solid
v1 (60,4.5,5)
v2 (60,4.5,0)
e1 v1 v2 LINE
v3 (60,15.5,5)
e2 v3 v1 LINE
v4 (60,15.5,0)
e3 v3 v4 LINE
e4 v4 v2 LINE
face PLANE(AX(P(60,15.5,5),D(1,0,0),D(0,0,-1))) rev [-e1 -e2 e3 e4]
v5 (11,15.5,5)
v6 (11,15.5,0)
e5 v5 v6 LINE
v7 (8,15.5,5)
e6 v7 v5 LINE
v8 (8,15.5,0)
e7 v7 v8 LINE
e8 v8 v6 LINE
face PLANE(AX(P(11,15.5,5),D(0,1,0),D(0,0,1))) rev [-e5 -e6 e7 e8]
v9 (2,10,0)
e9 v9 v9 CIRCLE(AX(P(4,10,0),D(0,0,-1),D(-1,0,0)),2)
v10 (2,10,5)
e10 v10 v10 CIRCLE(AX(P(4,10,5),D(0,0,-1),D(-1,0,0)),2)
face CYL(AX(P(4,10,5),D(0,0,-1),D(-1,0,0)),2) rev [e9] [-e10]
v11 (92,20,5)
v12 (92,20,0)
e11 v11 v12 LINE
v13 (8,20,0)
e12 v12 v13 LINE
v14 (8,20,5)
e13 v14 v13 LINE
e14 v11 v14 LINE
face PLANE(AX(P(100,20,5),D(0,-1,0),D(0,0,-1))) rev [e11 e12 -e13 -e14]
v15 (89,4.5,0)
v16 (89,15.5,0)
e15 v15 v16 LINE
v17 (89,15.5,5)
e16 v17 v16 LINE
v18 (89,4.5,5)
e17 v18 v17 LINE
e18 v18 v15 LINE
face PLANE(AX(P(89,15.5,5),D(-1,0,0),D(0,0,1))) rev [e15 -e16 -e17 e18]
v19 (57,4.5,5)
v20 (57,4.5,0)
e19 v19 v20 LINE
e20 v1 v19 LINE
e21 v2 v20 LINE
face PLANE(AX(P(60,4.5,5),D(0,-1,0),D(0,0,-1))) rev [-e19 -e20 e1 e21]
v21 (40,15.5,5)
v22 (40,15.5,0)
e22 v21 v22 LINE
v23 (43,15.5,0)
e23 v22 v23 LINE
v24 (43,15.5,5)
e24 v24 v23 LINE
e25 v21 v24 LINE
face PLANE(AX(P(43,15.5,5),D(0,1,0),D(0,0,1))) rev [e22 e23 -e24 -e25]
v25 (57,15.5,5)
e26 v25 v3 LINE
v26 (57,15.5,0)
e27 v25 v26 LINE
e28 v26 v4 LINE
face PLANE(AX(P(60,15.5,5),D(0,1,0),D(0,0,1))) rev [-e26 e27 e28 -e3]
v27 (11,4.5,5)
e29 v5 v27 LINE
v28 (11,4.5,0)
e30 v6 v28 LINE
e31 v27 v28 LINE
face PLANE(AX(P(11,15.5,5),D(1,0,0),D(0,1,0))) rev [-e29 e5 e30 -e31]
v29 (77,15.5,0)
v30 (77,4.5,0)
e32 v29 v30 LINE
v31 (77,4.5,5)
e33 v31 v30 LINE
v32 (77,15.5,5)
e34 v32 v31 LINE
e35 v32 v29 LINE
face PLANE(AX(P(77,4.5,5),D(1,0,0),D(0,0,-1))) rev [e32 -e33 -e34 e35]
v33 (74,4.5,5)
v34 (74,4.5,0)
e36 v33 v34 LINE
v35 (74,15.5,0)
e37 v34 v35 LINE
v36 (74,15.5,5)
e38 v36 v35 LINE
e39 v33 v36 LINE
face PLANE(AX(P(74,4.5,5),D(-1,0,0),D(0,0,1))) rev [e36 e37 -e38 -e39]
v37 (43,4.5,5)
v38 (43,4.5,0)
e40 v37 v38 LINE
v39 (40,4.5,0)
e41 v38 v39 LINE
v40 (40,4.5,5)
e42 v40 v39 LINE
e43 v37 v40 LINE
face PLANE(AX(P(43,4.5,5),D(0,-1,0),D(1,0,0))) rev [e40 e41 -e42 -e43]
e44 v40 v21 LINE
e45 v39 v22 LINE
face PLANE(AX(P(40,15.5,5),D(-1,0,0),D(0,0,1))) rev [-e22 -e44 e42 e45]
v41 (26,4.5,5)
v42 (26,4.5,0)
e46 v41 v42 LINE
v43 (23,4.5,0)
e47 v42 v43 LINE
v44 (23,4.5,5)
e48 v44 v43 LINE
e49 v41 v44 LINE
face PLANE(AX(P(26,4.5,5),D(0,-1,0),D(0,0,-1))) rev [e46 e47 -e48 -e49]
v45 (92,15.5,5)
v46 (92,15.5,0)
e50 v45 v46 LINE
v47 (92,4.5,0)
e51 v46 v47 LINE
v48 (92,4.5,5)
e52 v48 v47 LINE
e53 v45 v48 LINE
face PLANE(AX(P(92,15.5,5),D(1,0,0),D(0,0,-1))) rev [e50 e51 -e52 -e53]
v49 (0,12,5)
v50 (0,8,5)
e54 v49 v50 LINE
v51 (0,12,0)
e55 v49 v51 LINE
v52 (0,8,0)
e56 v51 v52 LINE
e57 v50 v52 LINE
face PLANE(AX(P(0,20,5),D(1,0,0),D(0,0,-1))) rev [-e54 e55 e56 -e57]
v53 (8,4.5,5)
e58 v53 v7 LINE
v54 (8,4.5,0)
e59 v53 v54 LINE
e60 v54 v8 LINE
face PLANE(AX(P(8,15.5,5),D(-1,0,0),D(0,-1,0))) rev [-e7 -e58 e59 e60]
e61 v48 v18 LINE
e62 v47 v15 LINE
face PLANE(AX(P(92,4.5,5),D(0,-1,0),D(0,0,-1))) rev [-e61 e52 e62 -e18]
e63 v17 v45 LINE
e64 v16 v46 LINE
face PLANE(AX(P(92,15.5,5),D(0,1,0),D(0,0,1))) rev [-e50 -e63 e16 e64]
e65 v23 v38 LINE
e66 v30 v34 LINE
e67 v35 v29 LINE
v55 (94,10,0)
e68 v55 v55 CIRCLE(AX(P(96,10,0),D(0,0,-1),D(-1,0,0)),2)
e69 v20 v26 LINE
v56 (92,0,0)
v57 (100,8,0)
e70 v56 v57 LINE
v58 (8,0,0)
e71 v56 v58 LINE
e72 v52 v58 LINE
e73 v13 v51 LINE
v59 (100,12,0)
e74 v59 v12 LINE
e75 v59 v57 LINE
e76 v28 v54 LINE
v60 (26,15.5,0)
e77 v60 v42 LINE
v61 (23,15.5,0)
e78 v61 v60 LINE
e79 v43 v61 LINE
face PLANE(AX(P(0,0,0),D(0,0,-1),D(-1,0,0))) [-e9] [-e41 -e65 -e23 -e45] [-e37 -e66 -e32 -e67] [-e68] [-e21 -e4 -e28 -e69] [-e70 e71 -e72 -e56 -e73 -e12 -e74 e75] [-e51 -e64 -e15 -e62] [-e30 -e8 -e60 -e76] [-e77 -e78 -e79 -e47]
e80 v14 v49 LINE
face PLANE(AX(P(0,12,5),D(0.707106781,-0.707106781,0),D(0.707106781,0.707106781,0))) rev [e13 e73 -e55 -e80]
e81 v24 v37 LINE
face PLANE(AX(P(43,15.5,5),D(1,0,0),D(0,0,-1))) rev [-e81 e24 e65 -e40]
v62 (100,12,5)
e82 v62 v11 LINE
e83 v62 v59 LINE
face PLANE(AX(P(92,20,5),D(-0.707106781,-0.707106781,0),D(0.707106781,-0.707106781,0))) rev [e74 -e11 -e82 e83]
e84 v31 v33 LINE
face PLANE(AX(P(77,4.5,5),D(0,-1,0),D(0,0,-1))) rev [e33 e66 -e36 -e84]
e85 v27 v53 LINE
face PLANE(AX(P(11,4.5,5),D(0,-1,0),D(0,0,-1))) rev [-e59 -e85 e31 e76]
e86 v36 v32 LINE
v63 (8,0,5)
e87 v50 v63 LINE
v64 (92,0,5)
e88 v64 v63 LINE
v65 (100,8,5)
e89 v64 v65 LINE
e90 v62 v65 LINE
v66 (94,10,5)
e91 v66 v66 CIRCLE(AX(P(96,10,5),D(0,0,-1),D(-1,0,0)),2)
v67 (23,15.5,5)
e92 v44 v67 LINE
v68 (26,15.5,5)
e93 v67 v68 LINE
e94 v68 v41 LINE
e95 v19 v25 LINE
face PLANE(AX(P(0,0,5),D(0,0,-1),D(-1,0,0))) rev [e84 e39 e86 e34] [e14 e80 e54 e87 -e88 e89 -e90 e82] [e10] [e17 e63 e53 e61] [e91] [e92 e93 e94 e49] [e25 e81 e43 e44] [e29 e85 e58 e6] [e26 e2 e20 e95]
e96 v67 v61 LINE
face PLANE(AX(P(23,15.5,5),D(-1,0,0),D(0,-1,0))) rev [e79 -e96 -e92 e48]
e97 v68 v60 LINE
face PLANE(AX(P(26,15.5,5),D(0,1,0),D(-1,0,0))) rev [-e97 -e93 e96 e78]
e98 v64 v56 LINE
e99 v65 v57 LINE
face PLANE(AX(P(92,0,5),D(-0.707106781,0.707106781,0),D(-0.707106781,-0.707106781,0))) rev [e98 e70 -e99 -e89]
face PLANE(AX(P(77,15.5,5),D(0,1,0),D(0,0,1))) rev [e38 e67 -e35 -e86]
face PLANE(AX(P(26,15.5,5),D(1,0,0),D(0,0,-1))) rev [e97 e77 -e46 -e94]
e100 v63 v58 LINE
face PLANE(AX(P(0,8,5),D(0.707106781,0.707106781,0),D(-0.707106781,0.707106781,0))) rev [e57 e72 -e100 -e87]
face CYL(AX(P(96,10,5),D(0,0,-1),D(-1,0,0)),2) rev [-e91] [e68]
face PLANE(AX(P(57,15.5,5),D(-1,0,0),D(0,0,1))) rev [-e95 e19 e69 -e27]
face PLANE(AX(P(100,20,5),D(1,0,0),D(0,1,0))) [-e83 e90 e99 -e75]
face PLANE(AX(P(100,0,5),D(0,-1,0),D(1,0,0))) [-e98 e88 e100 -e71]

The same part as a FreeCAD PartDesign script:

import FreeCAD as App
import Part
import Sketcher


def add_polygon(sketch, points):
    """Adds a closed chain of lines whose ends are joined by coincident constraints."""
    first, n = sketch.GeometryCount, len(points)
    for a, b in zip(points, points[1:] + points[:1]):
        sketch.addGeometry(Part.LineSegment(App.Vector(*a, 0), App.Vector(*b, 0)), False)
    for i in range(n):
        sketch.addConstraint(Sketcher.Constraint("Coincident", first + i, 2, first + (i + 1) % n, 1))

doc = App.newDocument("Part")
body = doc.addObject("PartDesign::Body", "Body")

# Sketch on XY plane
sketch1 = body.newObject("Sketcher::SketchObject", "Sketch")
sketch1.AttachmentSupport = (doc.getObject("XY_Plane"), [""])
sketch1.MapMode = "FlatFace"
add_polygon(sketch1, [(0, 20), (0, 0), (100, 0), (100, 20)])  # lines 0-3
sketch1.addConstraint(Sketcher.Constraint("Vertical", 0))
sketch1.addConstraint(Sketcher.Constraint("Horizontal", 1))
sketch1.addConstraint(Sketcher.Constraint("Vertical", 2))
sketch1.addConstraint(Sketcher.Constraint("Horizontal", 3))
sketch1.addConstraint(Sketcher.Constraint("Coincident", 0, 2, -1, 1))
sketch1.addConstraint(Sketcher.Constraint("DistanceX", 1, 1, 1, 2, 100.0))
sketch1.addConstraint(Sketcher.Constraint("DistanceY", 0, 2, 0, 1, 20.0))
pad1 = body.newObject("PartDesign::Pad", "Pad")
pad1.Profile = sketch1
pad1.Length = 5

# Sketch on XY plane
sketch2 = body.newObject("Sketcher::SketchObject", "Sketch001")
sketch2.AttachmentSupport = (doc.getObject("XY_Plane"), [""])
sketch2.MapMode = "FlatFace"
sketch2.addGeometry(Part.Circle(App.Vector(96, 10, 0), App.Vector(0, 0, 1), 2), False)  # 0
sketch2.addGeometry(Part.Circle(App.Vector(4, 10, 0), App.Vector(0, 0, 1), 2), False)  # 1
add_polygon(sketch2, [(92, 15.5), (92, 4.5), (89, 4.5), (89, 15.5)])  # lines 2-5
add_polygon(sketch2, [(77, 15.5), (77, 4.5), (74, 4.5), (74, 15.5)])  # lines 6-9
add_polygon(sketch2, [(60, 15.5), (60, 4.5), (57, 4.5), (57, 15.5)])  # lines 10-13
add_polygon(sketch2, [(43, 15.5), (43, 4.5), (40, 4.5), (40, 15.5)])  # lines 14-17
add_polygon(sketch2, [(26, 15.5), (26, 4.5), (23, 4.5), (23, 15.5)])  # lines 18-21
add_polygon(sketch2, [(11, 15.5), (11, 4.5), (8, 4.5), (8, 15.5)])  # lines 22-25
sketch2.addConstraint(Sketcher.Constraint("Vertical", 2))
sketch2.addConstraint(Sketcher.Constraint("Horizontal", 3))
sketch2.addConstraint(Sketcher.Constraint("Vertical", 4))
sketch2.addConstraint(Sketcher.Constraint("Horizontal", 5))
sketch2.addConstraint(Sketcher.Constraint("Vertical", 6))
sketch2.addConstraint(Sketcher.Constraint("Horizontal", 7))
sketch2.addConstraint(Sketcher.Constraint("Vertical", 8))
sketch2.addConstraint(Sketcher.Constraint("Horizontal", 9))
sketch2.addConstraint(Sketcher.Constraint("Vertical", 10))
sketch2.addConstraint(Sketcher.Constraint("Horizontal", 11))
sketch2.addConstraint(Sketcher.Constraint("Vertical", 12))
sketch2.addConstraint(Sketcher.Constraint("Horizontal", 13))
sketch2.addConstraint(Sketcher.Constraint("Vertical", 14))
sketch2.addConstraint(Sketcher.Constraint("Horizontal", 15))
sketch2.addConstraint(Sketcher.Constraint("Vertical", 16))
sketch2.addConstraint(Sketcher.Constraint("Horizontal", 17))
sketch2.addConstraint(Sketcher.Constraint("Vertical", 18))
sketch2.addConstraint(Sketcher.Constraint("Horizontal", 19))
sketch2.addConstraint(Sketcher.Constraint("Vertical", 20))
sketch2.addConstraint(Sketcher.Constraint("Horizontal", 21))
sketch2.addConstraint(Sketcher.Constraint("Vertical", 22))
sketch2.addConstraint(Sketcher.Constraint("Horizontal", 23))
sketch2.addConstraint(Sketcher.Constraint("Vertical", 24))
sketch2.addConstraint(Sketcher.Constraint("Horizontal", 25))
sketch2.addConstraint(Sketcher.Constraint("Equal", 0, 1))
sketch2.addConstraint(Sketcher.Constraint("Horizontal", 0, 3, 1, 3))
sketch2.addConstraint(Sketcher.Constraint("Horizontal", 3, 2, 6, 2))
sketch2.addConstraint(Sketcher.Constraint("Horizontal", 5, 2, 8, 2))
sketch2.addConstraint(Sketcher.Constraint("Horizontal", 7, 2, 10, 2))
sketch2.addConstraint(Sketcher.Constraint("Horizontal", 9, 2, 12, 2))
sketch2.addConstraint(Sketcher.Constraint("Horizontal", 11, 2, 14, 2))
sketch2.addConstraint(Sketcher.Constraint("Horizontal", 13, 2, 16, 2))
sketch2.addConstraint(Sketcher.Constraint("Horizontal", 15, 2, 18, 2))
sketch2.addConstraint(Sketcher.Constraint("Horizontal", 17, 2, 20, 2))
sketch2.addConstraint(Sketcher.Constraint("Horizontal", 19, 2, 22, 2))
sketch2.addConstraint(Sketcher.Constraint("Horizontal", 21, 2, 24, 2))
sketch2.addConstraint(Sketcher.Constraint("Equal", 5, 7))
sketch2.addConstraint(Sketcher.Constraint("Equal", 9, 11))
sketch2.addConstraint(Sketcher.Constraint("Equal", 13, 15))
sketch2.addConstraint(Sketcher.Constraint("Equal", 17, 19))
sketch2.addConstraint(Sketcher.Constraint("Equal", 21, 23))
sketch2.addConstraint(Sketcher.Constraint("Diameter", 0, 4.0))
sketch2.addConstraint(Sketcher.Constraint("DistanceX", 3, 2, 3, 1, 3.0))
sketch2.addConstraint(Sketcher.Constraint("DistanceY", 2, 2, 2, 1, 11.0))
sketch2.addConstraint(Sketcher.Constraint("DistanceX", -1, 1, 0, 3, 96.0))
sketch2.addConstraint(Sketcher.Constraint("DistanceY", -1, 1, 0, 3, 10.0))
sketch2.addConstraint(Sketcher.Constraint("DistanceX", -1, 1, 1, 3, 4.0))
sketch2.addConstraint(Sketcher.Constraint("DistanceX", -1, 1, 2, 2, 92.0))
sketch2.addConstraint(Sketcher.Constraint("DistanceX", -1, 1, 6, 2, 77.0))
sketch2.addConstraint(Sketcher.Constraint("DistanceX", -1, 1, 10, 2, 60.0))
sketch2.addConstraint(Sketcher.Constraint("DistanceX", -1, 1, 14, 2, 43.0))
sketch2.addConstraint(Sketcher.Constraint("DistanceX", -1, 1, 18, 2, 26.0))
sketch2.addConstraint(Sketcher.Constraint("DistanceX", -1, 1, 22, 2, 11.0))
sketch2.addConstraint(Sketcher.Constraint("DistanceY", -1, 1, 2, 2, 4.5))
pocket1 = body.newObject("PartDesign::Pocket", "Pocket")
pocket1.Profile = sketch2
pocket1.Length = 5
pocket1.Reversed = True

# Sketch on XY plane
sketch3 = body.newObject("Sketcher::SketchObject", "Sketch002")
sketch3.AttachmentSupport = (doc.getObject("XY_Plane"), [""])
sketch3.MapMode = "FlatFace"
add_polygon(sketch3, [(100, 12), (92, 20), (100, 20)])  # lines 0-2
add_polygon(sketch3, [(100, 8), (100, 0), (92, 0)])  # lines 3-5
add_polygon(sketch3, [(0, 20), (8, 20), (0, 12)])  # lines 6-8
add_polygon(sketch3, [(0, 8), (8, 0), (0, 0)])  # lines 9-11
sketch3.addConstraint(Sketcher.Constraint("Horizontal", 1))
sketch3.addConstraint(Sketcher.Constraint("Vertical", 2))
sketch3.addConstraint(Sketcher.Constraint("Vertical", 3))
sketch3.addConstraint(Sketcher.Constraint("Horizontal", 4))
sketch3.addConstraint(Sketcher.Constraint("Horizontal", 6))
sketch3.addConstraint(Sketcher.Constraint("Vertical", 8))
sketch3.addConstraint(Sketcher.Constraint("Horizontal", 10))
sketch3.addConstraint(Sketcher.Constraint("Vertical", 11))
sketch3.addConstraint(Sketcher.Constraint("Coincident", 10, 2, -1, 1))
sketch3.addConstraint(Sketcher.Constraint("PointOnObject", 3, 2, -1))
sketch3.addConstraint(Sketcher.Constraint("PointOnObject", 7, 2, -2))
sketch3.addConstraint(Sketcher.Constraint("Perpendicular", 0, 5))
sketch3.addConstraint(Sketcher.Constraint("Parallel", 5, 7))
sketch3.addConstraint(Sketcher.Constraint("Perpendicular", 7, 9))
sketch3.addConstraint(Sketcher.Constraint("Horizontal", 1, 2, 6, 2))
sketch3.addConstraint(Sketcher.Constraint("Horizontal", 2, 2, 7, 2))
sketch3.addConstraint(Sketcher.Constraint("Horizontal", 5, 2, 11, 2))
sketch3.addConstraint(Sketcher.Constraint("Vertical", 2, 2, 3, 2))
sketch3.addConstraint(Sketcher.Constraint("Vertical", 0, 2, 4, 2))
sketch3.addConstraint(Sketcher.Constraint("Vertical", 6, 2, 9, 2))
sketch3.addConstraint(Sketcher.Constraint("DistanceX", 1, 1, 1, 2, 8.0))
sketch3.addConstraint(Sketcher.Constraint("DistanceX", -1, 1, 0, 2, 92.0))
sketch3.addConstraint(Sketcher.Constraint("DistanceY", -1, 1, 0, 2, 20.0))
pocket2 = body.newObject("PartDesign::Pocket", "Pocket001")
pocket2.Profile = sketch3
pocket2.Length = 5
pocket2.Reversed = True

doc.recompute()
